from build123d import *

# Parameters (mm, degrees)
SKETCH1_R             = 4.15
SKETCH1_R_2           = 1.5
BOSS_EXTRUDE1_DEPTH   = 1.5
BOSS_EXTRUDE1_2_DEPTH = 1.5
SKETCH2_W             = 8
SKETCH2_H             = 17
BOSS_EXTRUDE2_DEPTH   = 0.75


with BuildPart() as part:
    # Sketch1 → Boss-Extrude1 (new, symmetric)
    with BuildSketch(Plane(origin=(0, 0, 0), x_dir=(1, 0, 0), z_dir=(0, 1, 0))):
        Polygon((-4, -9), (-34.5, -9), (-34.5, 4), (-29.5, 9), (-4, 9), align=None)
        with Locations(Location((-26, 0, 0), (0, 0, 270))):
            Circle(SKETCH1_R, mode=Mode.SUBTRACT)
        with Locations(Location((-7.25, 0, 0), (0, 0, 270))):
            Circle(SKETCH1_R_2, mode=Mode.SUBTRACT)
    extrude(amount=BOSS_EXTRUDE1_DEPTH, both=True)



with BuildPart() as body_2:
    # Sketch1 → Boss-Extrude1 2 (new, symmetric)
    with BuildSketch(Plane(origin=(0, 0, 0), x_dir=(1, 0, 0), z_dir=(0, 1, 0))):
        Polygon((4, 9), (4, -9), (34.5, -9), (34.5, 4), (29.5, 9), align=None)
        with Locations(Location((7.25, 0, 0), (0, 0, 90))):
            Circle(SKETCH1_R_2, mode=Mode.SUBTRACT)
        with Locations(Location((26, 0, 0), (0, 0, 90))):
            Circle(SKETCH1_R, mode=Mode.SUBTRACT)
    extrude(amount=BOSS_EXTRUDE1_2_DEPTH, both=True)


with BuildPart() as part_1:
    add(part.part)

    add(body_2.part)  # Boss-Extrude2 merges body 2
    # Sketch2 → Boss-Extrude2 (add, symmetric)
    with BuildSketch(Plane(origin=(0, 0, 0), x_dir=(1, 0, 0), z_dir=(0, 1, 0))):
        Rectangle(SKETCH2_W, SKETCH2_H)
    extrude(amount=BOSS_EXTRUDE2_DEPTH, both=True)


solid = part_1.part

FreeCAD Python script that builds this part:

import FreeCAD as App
import Part
import Sketcher
from FreeCAD import Vector
Q = App.Units.Quantity

doc = App.newDocument("Part")
params = doc.addObject("Spreadsheet::Sheet", "Params")
for row, (alias, value) in enumerate([
    ("sketch1_diameter", "3 mm"),
    ("sketch1_diameter2", "8.3 mm"),
    ("sketch1_height", "18 mm"),
    ("sketch1_height2", "13 mm"),
    ("sketch1_width", "30.5 mm"),
    ("pad1_length", "3 mm"),
    ("sketch2_diameter", "3 mm"),
    ("sketch2_diameter2", "8.3 mm"),
    ("sketch2_height", "18 mm"),
    ("sketch2_height2", "13 mm"),
    ("sketch2_width", "30.5 mm"),
    ("pad2_length", "3 mm"),
    ("sketch3_width", "8 mm"),
    ("sketch3_height", "17 mm"),
    ("pad3_length", "1.5 mm"),
], start=1):
    params.set(f"A{row}", alias)
    params.set(f"B{row}", "=" + value)
    params.setAlias(f"B{row}", alias)

body = doc.addObject("PartDesign::Body", "Body")

# Sketch on XZ plane
sketch1 = body.newObject("Sketcher::SketchObject", "Sketch")
sketch1.AttachmentSupport = (doc.getObject("XZ_Plane"), [""])
sketch1.MapMode = "FlatFace"
sketch1.addGeometry(Part.LineSegment(Vector(-34.5, 9, 0), Vector(-4, 9, 0)), False)
sketch1.addGeometry(Part.LineSegment(Vector(-4, 9, 0), Vector(-4, -9, 0)), False)
sketch1.addGeometry(Part.LineSegment(Vector(-4, -9, 0), Vector(-29.5, -9, 0)), False)
sketch1.addGeometry(Part.LineSegment(Vector(-29.5, -9, 0), Vector(-34.5, -4, 0)), False)
sketch1.addGeometry(Part.LineSegment(Vector(-34.5, -4, 0), Vector(-34.5, 9, 0)), False)
sketch1.addGeometry(Part.Circle(Vector(-7.2, 0, 0), Vector(0, 0, 1), 1.5), False)
sketch1.addGeometry(Part.Circle(Vector(-26, 0, 0), Vector(0, 0, 1), 4.2), False)
sketch1.addConstraint(Sketcher.Constraint("Coincident", 0, 2, 1, 1))
sketch1.addConstraint(Sketcher.Constraint("Coincident", 1, 2, 2, 1))
sketch1.addConstraint(Sketcher.Constraint("Coincident", 2, 2, 3, 1))
sketch1.addConstraint(Sketcher.Constraint("Coincident", 3, 2, 4, 1))
sketch1.addConstraint(Sketcher.Constraint("Coincident", 4, 2, 0, 1))
sketch1.addConstraint(Sketcher.Constraint("Horizontal", 0))
sketch1.addConstraint(Sketcher.Constraint("Vertical", 1))
sketch1.addConstraint(Sketcher.Constraint("Horizontal", 2))
sketch1.addConstraint(Sketcher.Constraint("Vertical", 4))
sketch1.addConstraint(Sketcher.Constraint("PointOnObject", 5, 3, -1))
sketch1.addConstraint(Sketcher.Constraint("PointOnObject", 6, 3, -1))
sketch1.addConstraint(Sketcher.Constraint("Diameter", 5, 3.0))
sketch1.addConstraint(Sketcher.Constraint("Diameter", 6, 8.3))
sketch1.addConstraint(Sketcher.Constraint("DistanceY", 1, 2, 1, 1, 18.0))
sketch1.addConstraint(Sketcher.Constraint("DistanceY", 4, 1, 4, 2, 13.0))
sketch1.addConstraint(Sketcher.Constraint("Angle", 3, Q("135 deg")))
sketch1.addConstraint(Sketcher.Constraint("DistanceX", 0, 1, 0, 2, 30.5))
sketch1.addConstraint(Sketcher.Constraint("DistanceX", 6, 3, -1, 1, 26.0))
sketch1.addConstraint(Sketcher.Constraint("DistanceX", 0, 2, -1, 1, 4.0))
sketch1.addConstraint(Sketcher.Constraint("DistanceY", -1, 1, 0, 2, 9.0))
sketch1.addConstraint(Sketcher.Constraint("DistanceX", 5, 3, -1, 1, 7.25))
sketch1.setExpression("Constraints[11]", "Params.sketch1_diameter")
sketch1.setExpression("Constraints[12]", "Params.sketch1_diameter2")
sketch1.setExpression("Constraints[13]", "Params.sketch1_height")
sketch1.setExpression("Constraints[14]", "Params.sketch1_height2")
sketch1.setExpression("Constraints[16]", "Params.sketch1_width")
pad1 = body.newObject("PartDesign::Pad", "Pad")
pad1.Profile = sketch1
pad1.setExpression("Length", "Params.pad1_length")
pad1.Midplane = True
body2 = doc.addObject("PartDesign::Body", "Body001")

# Sketch on XZ plane
sketch2 = body2.newObject("Sketcher::SketchObject", "Sketch001")
sketch2.AttachmentSupport = (doc.getObject("XZ_Plane001"), [""])
sketch2.MapMode = "FlatFace"
sketch2.addGeometry(Part.LineSegment(Vector(4, -9, 0), Vector(4, 9, 0)), False)
sketch2.addGeometry(Part.LineSegment(Vector(4, 9, 0), Vector(34.5, 9, 0)), False)
sketch2.addGeometry(Part.LineSegment(Vector(34.5, 9, 0), Vector(34.5, -4, 0)), False)
sketch2.addGeometry(Part.LineSegment(Vector(34.5, -4, 0), Vector(29.5, -9, 0)), False)
sketch2.addGeometry(Part.LineSegment(Vector(29.5, -9, 0), Vector(4, -9, 0)), False)
sketch2.addGeometry(Part.Circle(Vector(7.2, 0, 0), Vector(0, 0, 1), 1.5), False)
sketch2.addGeometry(Part.Circle(Vector(26, 0, 0), Vector(0, 0, 1), 4.2), False)
sketch2.addConstraint(Sketcher.Constraint("Coincident", 0, 2, 1, 1))
sketch2.addConstraint(Sketcher.Constraint("Coincident", 1, 2, 2, 1))
sketch2.addConstraint(Sketcher.Constraint("Coincident", 2, 2, 3, 1))
sketch2.addConstraint(Sketcher.Constraint("Coincident", 3, 2, 4, 1))
sketch2.addConstraint(Sketcher.Constraint("Coincident", 4, 2, 0, 1))
sketch2.addConstraint(Sketcher.Constraint("Vertical", 0))
sketch2.addConstraint(Sketcher.Constraint("Horizontal", 1))
sketch2.addConstraint(Sketcher.Constraint("Vertical", 2))
sketch2.addConstraint(Sketcher.Constraint("Horizontal", 4))
sketch2.addConstraint(Sketcher.Constraint("PointOnObject", 5, 3, -1))
sketch2.addConstraint(Sketcher.Constraint("PointOnObject", 6, 3, -1))
sketch2.addConstraint(Sketcher.Constraint("Diameter", 5, 3.0))
sketch2.addConstraint(Sketcher.Constraint("Diameter", 6, 8.3))
sketch2.addConstraint(Sketcher.Constraint("DistanceY", 0, 1, 0, 2, 18.0))
sketch2.addConstraint(Sketcher.Constraint("DistanceY", 2, 2, 2, 1, 13.0))
sketch2.addConstraint(Sketcher.Constraint("Angle", 3, Q("-135 deg")))
sketch2.addConstraint(Sketcher.Constraint("DistanceX", 1, 1, 1, 2, 30.5))
sketch2.addConstraint(Sketcher.Constraint("DistanceX", -1, 1, 6, 3, 26.0))
sketch2.addConstraint(Sketcher.Constraint("DistanceX", -1, 1, 0, 2, 4.0))
sketch2.addConstraint(Sketcher.Constraint("DistanceY", -1, 1, 0, 2, 9.0))
sketch2.addConstraint(Sketcher.Constraint("DistanceX", -1, 1, 5, 3, 7.25))
sketch2.setExpression("Constraints[11]", "Params.sketch2_diameter")
sketch2.setExpression("Constraints[12]", "Params.sketch2_diameter2")
sketch2.setExpression("Constraints[13]", "Params.sketch2_height")
sketch2.setExpression("Constraints[14]", "Params.sketch2_height2")
sketch2.setExpression("Constraints[16]", "Params.sketch2_width")
pad2 = body2.newObject("PartDesign::Pad", "Pad001")
pad2.Profile = sketch2
pad2.setExpression("Length", "Params.pad2_length")
pad2.Midplane = True
body.AllowCompound = True
doc.recompute()

boolean = body.newObject("PartDesign::Boolean", "Boolean")
boolean.Type = "Fuse"
boolean.addObjects([body2])

# Sketch on XZ plane
sketch3 = body.newObject("Sketcher::SketchObject", "Sketch002")
sketch3.AttachmentSupport = (doc.getObject("XZ_Plane"), [""])
sketch3.MapMode = "FlatFace"
sketch3.addGeometry(Part.LineSegment(Vector(-4, -8, 0), Vector(-4, 8, 0)), False)
sketch3.addGeometry(Part.LineSegment(Vector(-4, 8, 0), Vector(4, 8, 0)), False)
sketch3.addGeometry(Part.LineSegment(Vector(4, 8, 0), Vector(4, -8, 0)), False)
sketch3.addGeometry(Part.LineSegment(Vector(4, -8, 0), Vector(-4, -8, 0)), False)
sketch3.addConstraint(Sketcher.Constraint("Coincident", 0, 2, 1, 1))
sketch3.addConstraint(Sketcher.Constraint("Coincident", 1, 2, 2, 1))
sketch3.addConstraint(Sketcher.Constraint("Coincident", 2, 2, 3, 1))
sketch3.addConstraint(Sketcher.Constraint("Coincident", 3, 2, 0, 1))
sketch3.addConstraint(Sketcher.Constraint("Vertical", 0))
sketch3.addConstraint(Sketcher.Constraint("Horizontal", 1))
sketch3.addConstraint(Sketcher.Constraint("Vertical", 2))
sketch3.addConstraint(Sketcher.Constraint("Horizontal", 3))
sketch3.addConstraint(Sketcher.Constraint("Symmetric", 0, 2, 2, 2, -1, 1))
sketch3.addConstraint(Sketcher.Constraint("DistanceX", 1, 1, 1, 2, 8.0))
sketch3.addConstraint(Sketcher.Constraint("DistanceY", 0, 1, 0, 2, 17.0))
sketch3.setExpression("Constraints[9]", "Params.sketch3_width")
sketch3.setExpression("Constraints[10]", "Params.sketch3_height")
pad3 = body.newObject("PartDesign::Pad", "Pad002")
pad3.Profile = sketch3
pad3.setExpression("Length", "Params.pad3_length")
pad3.Midplane = True

doc.recompute()
